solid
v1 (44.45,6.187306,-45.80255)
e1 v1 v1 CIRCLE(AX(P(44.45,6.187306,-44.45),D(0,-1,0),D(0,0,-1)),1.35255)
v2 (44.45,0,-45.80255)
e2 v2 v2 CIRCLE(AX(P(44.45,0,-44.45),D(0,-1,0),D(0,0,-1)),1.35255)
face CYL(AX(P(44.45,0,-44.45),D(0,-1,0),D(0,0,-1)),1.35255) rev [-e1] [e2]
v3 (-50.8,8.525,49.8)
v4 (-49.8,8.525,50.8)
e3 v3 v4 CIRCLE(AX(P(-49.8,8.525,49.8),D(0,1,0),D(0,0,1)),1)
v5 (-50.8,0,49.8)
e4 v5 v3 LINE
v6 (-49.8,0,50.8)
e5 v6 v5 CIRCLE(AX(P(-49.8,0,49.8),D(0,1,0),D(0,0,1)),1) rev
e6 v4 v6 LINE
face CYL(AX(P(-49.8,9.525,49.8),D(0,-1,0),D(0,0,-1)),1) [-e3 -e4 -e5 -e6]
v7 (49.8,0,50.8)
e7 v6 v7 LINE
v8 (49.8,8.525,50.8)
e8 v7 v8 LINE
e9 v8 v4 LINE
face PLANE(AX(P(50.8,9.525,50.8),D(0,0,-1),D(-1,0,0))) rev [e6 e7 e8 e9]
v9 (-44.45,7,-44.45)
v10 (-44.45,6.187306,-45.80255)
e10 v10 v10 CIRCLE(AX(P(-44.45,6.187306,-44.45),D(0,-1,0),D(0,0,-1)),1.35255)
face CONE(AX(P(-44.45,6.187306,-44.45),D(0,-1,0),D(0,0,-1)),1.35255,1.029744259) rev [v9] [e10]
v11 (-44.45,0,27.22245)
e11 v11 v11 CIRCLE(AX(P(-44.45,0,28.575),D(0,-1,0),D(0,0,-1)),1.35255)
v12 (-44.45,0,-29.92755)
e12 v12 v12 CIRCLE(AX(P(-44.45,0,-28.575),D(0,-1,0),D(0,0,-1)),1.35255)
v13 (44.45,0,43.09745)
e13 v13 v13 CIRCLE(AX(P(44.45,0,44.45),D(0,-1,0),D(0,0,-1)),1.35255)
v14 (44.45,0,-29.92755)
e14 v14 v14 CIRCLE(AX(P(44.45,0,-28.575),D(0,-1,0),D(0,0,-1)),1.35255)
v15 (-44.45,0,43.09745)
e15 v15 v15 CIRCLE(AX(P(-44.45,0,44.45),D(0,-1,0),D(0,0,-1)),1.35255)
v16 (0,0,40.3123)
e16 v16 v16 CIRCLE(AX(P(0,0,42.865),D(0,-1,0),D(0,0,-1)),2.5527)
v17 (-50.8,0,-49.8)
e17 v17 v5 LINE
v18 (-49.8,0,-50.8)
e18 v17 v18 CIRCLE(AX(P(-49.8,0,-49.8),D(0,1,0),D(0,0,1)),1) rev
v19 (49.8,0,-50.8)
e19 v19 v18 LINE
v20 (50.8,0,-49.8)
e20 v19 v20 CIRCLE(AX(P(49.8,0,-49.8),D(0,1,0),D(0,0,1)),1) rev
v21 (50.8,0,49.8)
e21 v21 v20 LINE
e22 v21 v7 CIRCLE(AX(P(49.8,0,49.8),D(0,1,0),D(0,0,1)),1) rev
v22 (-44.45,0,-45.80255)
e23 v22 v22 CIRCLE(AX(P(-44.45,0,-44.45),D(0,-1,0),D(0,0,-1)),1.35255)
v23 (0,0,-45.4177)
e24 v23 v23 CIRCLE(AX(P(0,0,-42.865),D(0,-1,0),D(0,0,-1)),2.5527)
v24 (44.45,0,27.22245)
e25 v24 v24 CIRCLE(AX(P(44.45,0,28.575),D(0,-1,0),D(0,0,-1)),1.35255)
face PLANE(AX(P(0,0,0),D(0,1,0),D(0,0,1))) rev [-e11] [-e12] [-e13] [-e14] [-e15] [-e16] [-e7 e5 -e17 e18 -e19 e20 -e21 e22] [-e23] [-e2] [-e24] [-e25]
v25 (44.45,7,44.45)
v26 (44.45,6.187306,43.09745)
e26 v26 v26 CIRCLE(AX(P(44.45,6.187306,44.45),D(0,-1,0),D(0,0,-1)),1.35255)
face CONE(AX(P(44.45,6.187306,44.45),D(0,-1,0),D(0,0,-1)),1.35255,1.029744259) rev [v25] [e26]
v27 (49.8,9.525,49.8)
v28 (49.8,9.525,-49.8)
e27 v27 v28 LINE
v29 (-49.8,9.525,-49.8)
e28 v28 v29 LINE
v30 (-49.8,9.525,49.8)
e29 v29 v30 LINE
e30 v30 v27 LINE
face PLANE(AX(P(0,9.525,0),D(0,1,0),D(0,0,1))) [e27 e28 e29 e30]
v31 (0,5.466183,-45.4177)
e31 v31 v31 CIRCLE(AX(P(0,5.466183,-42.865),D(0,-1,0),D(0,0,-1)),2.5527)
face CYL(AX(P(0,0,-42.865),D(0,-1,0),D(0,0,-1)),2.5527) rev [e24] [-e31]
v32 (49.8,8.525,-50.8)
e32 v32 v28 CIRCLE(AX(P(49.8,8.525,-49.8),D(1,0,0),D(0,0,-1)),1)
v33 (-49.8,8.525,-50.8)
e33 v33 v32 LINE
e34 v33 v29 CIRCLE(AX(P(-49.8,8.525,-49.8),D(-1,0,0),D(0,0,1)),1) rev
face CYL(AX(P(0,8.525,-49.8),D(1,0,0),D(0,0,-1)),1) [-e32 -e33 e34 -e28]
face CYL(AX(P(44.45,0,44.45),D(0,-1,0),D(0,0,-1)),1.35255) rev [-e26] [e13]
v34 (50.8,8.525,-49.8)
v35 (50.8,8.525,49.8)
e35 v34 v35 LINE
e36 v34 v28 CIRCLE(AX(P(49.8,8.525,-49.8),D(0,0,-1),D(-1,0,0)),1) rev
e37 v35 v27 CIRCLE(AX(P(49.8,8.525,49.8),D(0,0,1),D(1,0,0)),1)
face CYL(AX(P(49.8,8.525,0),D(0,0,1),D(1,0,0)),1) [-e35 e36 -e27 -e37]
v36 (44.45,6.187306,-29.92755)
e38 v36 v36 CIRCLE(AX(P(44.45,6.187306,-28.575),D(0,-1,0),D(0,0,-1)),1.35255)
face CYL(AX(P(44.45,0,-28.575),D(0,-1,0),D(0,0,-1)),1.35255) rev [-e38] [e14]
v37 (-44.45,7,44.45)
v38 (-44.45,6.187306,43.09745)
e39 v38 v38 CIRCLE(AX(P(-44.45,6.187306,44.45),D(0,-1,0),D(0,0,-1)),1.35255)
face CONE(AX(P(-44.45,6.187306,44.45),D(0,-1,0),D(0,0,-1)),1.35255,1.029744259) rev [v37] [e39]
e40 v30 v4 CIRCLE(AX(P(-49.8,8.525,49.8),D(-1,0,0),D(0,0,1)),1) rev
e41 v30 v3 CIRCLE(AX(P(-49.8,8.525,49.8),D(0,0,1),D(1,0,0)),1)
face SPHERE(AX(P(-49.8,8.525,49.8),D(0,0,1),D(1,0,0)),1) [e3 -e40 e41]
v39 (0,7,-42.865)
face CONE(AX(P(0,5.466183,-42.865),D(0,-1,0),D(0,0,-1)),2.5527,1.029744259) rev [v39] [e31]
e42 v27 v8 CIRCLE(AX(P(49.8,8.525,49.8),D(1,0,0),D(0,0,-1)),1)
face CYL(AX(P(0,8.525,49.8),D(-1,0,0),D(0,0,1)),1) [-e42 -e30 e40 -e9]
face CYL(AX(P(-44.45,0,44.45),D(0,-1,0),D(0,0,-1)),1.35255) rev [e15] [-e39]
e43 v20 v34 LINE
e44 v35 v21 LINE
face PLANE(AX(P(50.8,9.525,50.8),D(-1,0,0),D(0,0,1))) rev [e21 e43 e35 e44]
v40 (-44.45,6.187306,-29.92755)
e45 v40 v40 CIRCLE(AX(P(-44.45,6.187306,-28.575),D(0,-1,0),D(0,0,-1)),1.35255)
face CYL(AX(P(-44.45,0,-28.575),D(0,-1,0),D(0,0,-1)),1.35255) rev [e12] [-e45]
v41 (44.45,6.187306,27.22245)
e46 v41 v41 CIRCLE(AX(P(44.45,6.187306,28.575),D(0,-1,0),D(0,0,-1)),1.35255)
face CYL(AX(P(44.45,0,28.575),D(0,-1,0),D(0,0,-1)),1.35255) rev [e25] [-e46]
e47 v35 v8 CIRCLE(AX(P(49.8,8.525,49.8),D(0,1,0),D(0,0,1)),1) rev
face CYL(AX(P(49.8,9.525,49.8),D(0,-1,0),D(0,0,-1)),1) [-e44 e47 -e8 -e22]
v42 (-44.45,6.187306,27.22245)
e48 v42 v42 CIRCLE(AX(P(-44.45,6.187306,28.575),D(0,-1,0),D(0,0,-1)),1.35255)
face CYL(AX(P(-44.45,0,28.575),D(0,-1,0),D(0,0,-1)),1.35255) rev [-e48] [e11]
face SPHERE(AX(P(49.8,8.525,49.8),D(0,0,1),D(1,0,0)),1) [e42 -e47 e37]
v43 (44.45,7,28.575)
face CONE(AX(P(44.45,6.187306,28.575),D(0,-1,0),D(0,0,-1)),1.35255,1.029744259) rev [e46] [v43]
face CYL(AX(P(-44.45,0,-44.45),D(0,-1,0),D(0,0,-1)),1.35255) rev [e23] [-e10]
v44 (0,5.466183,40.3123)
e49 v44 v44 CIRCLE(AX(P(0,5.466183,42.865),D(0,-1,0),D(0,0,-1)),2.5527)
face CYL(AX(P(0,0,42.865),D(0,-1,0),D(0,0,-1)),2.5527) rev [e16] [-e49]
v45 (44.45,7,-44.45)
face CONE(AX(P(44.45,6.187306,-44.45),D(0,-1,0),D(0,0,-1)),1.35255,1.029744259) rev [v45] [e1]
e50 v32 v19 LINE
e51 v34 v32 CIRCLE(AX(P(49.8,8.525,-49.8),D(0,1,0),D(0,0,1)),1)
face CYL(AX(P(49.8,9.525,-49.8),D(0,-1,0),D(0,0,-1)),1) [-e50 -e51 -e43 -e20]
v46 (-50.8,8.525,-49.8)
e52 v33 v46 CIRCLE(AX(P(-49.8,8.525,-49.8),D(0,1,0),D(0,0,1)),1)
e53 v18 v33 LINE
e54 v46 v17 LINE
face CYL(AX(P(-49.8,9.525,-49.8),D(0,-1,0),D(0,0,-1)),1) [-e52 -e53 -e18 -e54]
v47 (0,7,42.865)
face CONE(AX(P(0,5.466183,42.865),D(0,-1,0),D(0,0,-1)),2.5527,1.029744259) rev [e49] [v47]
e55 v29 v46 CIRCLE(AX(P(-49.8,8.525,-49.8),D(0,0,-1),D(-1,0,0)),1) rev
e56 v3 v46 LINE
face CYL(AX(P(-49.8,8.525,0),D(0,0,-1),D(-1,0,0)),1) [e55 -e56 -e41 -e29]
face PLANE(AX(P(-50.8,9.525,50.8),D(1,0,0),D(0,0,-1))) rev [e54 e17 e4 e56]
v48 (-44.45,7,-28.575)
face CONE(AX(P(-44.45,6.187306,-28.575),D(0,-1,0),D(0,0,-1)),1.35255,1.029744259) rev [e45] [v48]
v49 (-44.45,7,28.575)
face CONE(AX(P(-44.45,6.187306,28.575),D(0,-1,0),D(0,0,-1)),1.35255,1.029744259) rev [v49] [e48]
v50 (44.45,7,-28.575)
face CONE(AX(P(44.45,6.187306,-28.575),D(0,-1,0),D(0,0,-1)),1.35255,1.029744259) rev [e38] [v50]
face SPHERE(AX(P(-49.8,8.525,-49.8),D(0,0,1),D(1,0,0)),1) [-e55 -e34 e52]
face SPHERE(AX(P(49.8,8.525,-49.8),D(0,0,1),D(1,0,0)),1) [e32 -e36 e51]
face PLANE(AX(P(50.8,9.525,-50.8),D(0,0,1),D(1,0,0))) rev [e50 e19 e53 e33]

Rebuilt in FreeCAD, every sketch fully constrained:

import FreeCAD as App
import Part
import Sketcher
from FreeCAD import Vector
Q = App.Units.Quantity


def edges_at(feature, points):
    """Names of the edges that pass closest to the given points."""
    edges = feature.Shape.Edges
    near = lambda p: min(range(len(edges)), key=lambda i: edges[i].distToShape(Part.Vertex(*p))[0])
    return sorted({f"Edge{near(p) + 1}" for p in points})

doc = App.newDocument("Part")
params = doc.addObject("Spreadsheet::Sheet", "Params")
for row, (alias, value) in enumerate([
    ("sketch1_width", "4 in"),
    ("pad1_length", "0.375 in"),
    ("hole_diameter", "0.1065 in"),
    ("hole_depth", "6.187306 mm"),
    ("sketch3_diameter", "0.201 in"),
    ("hole2_diameter", "0.201 in"),
    ("hole2_depth", "5.466183 mm"),
    ("fillet_radius", "1 mm"),
], start=1):
    params.set(f"A{row}", alias)
    params.set(f"B{row}", "=" + value)
    params.setAlias(f"B{row}", alias)

body = doc.addObject("PartDesign::Body", "Body")

# Sketch on XZ plane
sketch1 = body.newObject("Sketcher::SketchObject", "Sketch")
sketch1.AttachmentSupport = (doc.getObject("XZ_Plane"), [""])
sketch1.MapMode = "FlatFace"
sketch1.addGeometry([
    Part.LineSegment(Vector(-51, -51, 0), Vector(-51, 51, 0)),
    Part.LineSegment(Vector(-51, 51, 0), Vector(51, 51, 0)),
    Part.LineSegment(Vector(51, 51, 0), Vector(51, -51, 0)),
    Part.LineSegment(Vector(51, -51, 0), Vector(-51, -51, 0)),
], False)
sketch1.addConstraint([
    Sketcher.Constraint("Coincident", 0, 2, 1, 1),
    Sketcher.Constraint("Coincident", 1, 2, 2, 1),
    Sketcher.Constraint("Coincident", 2, 2, 3, 1),
    Sketcher.Constraint("Coincident", 3, 2, 0, 1),
    Sketcher.Constraint("Vertical", 0),
    Sketcher.Constraint("Horizontal", 1),
    Sketcher.Constraint("Vertical", 2),
    Sketcher.Constraint("Horizontal", 3),
    Sketcher.Constraint("Symmetric", 0, 2, 2, 2, -1, 1),
    Sketcher.Constraint("Equal", 3, 0),
    Sketcher.Constraint("DistanceX", 1, 1, 1, 2, Q("4 in")),
])
sketch1.setExpression("Constraints[10]", "Params.sketch1_width")
pad1 = body.newObject("PartDesign::Pad", "Pad")
pad1.Profile = sketch1
pad1.setExpression("Length", "Params.pad1_length")
pad1.Reversed = True

# Sketch on XZ plane
sketch2 = body.newObject("Sketcher::SketchObject", "Sketch001")
sketch2.AttachmentSupport = (doc.getObject("XZ_Plane"), [""])
sketch2.MapMode = "FlatFace"
sketch2.addGeometry([
    Part.Circle(Vector(44.5, 44.5, 0), Vector(0, 0, 1), 1.4),  # 0
    Part.Circle(Vector(44.5, -44.5, 0), Vector(0, 0, 1), 1.4),  # 1
    Part.Circle(Vector(-44.5, -44.5, 0), Vector(0, 0, 1), 1.4),  # 2
    Part.Circle(Vector(-44.5, 44.5, 0), Vector(0, 0, 1), 1.4),  # 3
    Part.Circle(Vector(44.5, 28.6, 0), Vector(0, 0, 1), 1.4),  # 4
    Part.Circle(Vector(44.5, -28.6, 0), Vector(0, 0, 1), 1.4),  # 5
    Part.Circle(Vector(-44.5, -28.6, 0), Vector(0, 0, 1), 1.4),  # 6
    Part.Circle(Vector(-44.5, 28.6, 0), Vector(0, 0, 1), 1.4),  # 7
], False)
sketch2.addConstraint([
    Sketcher.Constraint("Equal", 0, 1),
    Sketcher.Constraint("Equal", 1, 2),
    Sketcher.Constraint("Equal", 2, 3),
    Sketcher.Constraint("Equal", 3, 4),
    Sketcher.Constraint("Equal", 4, 5),
    Sketcher.Constraint("Equal", 5, 6),
    Sketcher.Constraint("Equal", 6, 7),
    Sketcher.Constraint("Symmetric", 0, 3, 2, 3, -1, 1),
    Sketcher.Constraint("Symmetric", 1, 3, 3, 3, -1, 1),
    Sketcher.Constraint("Symmetric", 4, 3, 6, 3, -1, 1),
    Sketcher.Constraint("Symmetric", 5, 3, 7, 3, -1, 1),
    Sketcher.Constraint("Symmetric", 1, 3, 2, 3, -2),
    Sketcher.Constraint("Symmetric", 5, 3, 6, 3, -2),
    Sketcher.Constraint("Vertical", 1, 3, 4, 3),
    Sketcher.Constraint("Diameter", 0, Q("0.1065 in")),
    Sketcher.Constraint("DistanceY", 1, 3, 0, 3, Q("3.5 in")),
    Sketcher.Constraint("DistanceX", 2, 3, 1, 3, Q("3.5 in")),
    Sketcher.Constraint("DistanceY", 5, 3, 4, 3, Q("2.25 in")),
])
doc.recompute()
hole = body.newObject("PartDesign::Hole", "Hole")
hole.Profile = sketch2
hole.ThreadType = "None"
hole.setExpression("Diameter", "Params.hole_diameter")
hole.DepthType = "Dimension"
hole.setExpression("Depth", "Params.hole_depth")
hole.DrillPoint = "Angled"
hole.DrillPointAngle = 118

# Sketch on XZ plane
sketch3 = body.newObject("Sketcher::SketchObject", "Sketch002")
sketch3.AttachmentSupport = (doc.getObject("XZ_Plane"), [""])
sketch3.MapMode = "FlatFace"
sketch3.addGeometry([
    Part.Circle(Vector(0, 42.9, 0), Vector(0, 0, 1), 2.6),
    Part.Circle(Vector(0, -42.9, 0), Vector(0, 0, 1), 2.6),
], False)
sketch3.addConstraint([
    Sketcher.Constraint("Equal", 0, 1),
    Sketcher.Constraint("Symmetric", 0, 3, 1, 3, -1, 1),
    Sketcher.Constraint("PointOnObject", 0, 3, -2),
    Sketcher.Constraint("Diameter", 0, Q("0.201 in")),
    Sketcher.Constraint("DistanceY", -1, 1, 0, 3, 42.865),
])
sketch3.setExpression("Constraints[3]", "Params.sketch3_diameter")
doc.recompute()
hole2 = body.newObject("PartDesign::Hole", "Hole001")
hole2.Profile = sketch3
hole2.ThreadType = "None"
hole2.setExpression("Diameter", "Params.hole2_diameter")
hole2.DepthType = "Dimension"
hole2.setExpression("Depth", "Params.hole2_depth")
hole2.DrillPoint = "Angled"
hole2.DrillPointAngle = 118
doc.recompute()

fillet = body.newObject("PartDesign::Fillet", "Fillet")
fillet.Base = (hole2, edges_at(hole2, [
    (50.8, 9.525, 0),
    (0, 9.525, -50.8),
    (-50.8, 9.525, 0),
    (-50.8, 4.763, -50.8),
    (50.8, 4.763, -50.8),
    (50.8, 4.763, 50.8),
    (-50.8, 4.763, 50.8),
    (0, 9.525, 50.8),
]))
fillet.setExpression("Radius", "Params.fillet_radius")

doc.recompute()
